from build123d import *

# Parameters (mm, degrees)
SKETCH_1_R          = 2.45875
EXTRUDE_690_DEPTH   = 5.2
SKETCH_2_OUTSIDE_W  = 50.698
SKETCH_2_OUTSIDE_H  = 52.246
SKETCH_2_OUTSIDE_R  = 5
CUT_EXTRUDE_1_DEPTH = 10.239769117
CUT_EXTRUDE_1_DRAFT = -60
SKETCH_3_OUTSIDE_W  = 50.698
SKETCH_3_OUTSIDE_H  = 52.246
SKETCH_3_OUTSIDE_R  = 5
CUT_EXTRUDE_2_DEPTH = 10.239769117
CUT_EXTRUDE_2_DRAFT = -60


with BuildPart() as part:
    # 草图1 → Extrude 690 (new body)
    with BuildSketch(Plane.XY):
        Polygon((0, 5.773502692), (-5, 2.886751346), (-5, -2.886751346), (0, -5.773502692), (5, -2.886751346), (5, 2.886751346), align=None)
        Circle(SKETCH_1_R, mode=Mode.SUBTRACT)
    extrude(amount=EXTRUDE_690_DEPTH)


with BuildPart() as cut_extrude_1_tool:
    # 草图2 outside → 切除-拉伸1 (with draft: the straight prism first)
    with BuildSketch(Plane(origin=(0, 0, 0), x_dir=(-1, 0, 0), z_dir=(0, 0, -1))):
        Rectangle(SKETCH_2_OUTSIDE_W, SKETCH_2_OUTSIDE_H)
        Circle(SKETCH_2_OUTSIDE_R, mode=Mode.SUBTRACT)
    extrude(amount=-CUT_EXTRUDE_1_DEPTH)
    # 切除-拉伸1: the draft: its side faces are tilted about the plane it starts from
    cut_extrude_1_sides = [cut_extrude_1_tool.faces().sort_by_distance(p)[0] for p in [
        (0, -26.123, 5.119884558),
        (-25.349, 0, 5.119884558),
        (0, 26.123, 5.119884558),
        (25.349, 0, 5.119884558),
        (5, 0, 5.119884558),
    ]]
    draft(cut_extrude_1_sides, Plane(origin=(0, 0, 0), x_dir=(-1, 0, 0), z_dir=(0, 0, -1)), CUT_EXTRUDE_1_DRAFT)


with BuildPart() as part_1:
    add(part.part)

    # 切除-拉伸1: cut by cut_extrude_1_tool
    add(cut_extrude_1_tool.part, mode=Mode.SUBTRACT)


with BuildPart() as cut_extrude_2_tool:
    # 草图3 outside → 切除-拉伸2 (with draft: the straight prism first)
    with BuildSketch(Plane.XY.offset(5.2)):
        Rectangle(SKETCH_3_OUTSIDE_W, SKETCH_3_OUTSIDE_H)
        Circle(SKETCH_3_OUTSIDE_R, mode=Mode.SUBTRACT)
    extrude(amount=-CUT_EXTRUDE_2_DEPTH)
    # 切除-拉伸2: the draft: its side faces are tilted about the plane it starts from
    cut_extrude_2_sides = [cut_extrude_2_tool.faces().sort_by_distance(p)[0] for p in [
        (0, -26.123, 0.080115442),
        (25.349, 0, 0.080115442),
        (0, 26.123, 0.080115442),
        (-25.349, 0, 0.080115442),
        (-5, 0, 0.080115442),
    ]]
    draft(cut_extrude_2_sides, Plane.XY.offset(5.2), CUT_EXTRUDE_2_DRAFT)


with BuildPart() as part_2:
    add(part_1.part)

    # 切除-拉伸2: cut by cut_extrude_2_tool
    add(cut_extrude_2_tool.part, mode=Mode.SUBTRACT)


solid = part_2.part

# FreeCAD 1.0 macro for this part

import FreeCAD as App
import Part
import Sketcher

V = App.Vector
Q = App.Units.Quantity


def faces_at(feature, points):
    """Names of the faces that lie closest to the given points."""
    faces = feature.Shape.Faces
    near = lambda p: min(range(len(faces)), key=lambda i: faces[i].distToShape(Part.Vertex(*p))[0])
    return sorted({f"Face{near(p) + 1}" for p in points})


def add_polygon(sketch, points):
    """Adds a closed chain of lines whose ends are joined by coincident constraints."""
    first, n = sketch.GeometryCount, len(points)
    for a, b in zip(points, points[1:] + points[:1]):
        sketch.addGeometry(Part.LineSegment(App.Vector(*a, 0), App.Vector(*b, 0)), False)
    for i in range(n):
        sketch.addConstraint(Sketcher.Constraint("Coincident", first + i, 2, first + (i + 1) % n, 1))

doc = App.newDocument("Part")
body = doc.addObject("PartDesign::Body", "Body")

# Sketch on XY plane
sketch1 = doc.addObject("Sketcher::SketchObject", "Sketch")
body.addObject(sketch1)
sketch1.AttachmentSupport = (doc.XY_Plane, [""])
sketch1.MapMode = "FlatFace"
add_polygon(sketch1, [(0, 5.773503), (-5, 2.886751), (-5, -2.886751), (0, -5.773503), (5, -2.886751), (5, 2.886751)])  # lines 0-5
sketch1.addGeometry(Part.Circle(V(0, 0, 0), V(0, 0, 1), 2.45875), False)  # 6
sketch1.addConstraint(Sketcher.Constraint("Vertical", 1))
sketch1.addConstraint(Sketcher.Constraint("Vertical", 4))
sketch1.addConstraint(Sketcher.Constraint("Coincident", 6, 3, -1, 1))
sketch1.addConstraint(Sketcher.Constraint("Symmetric", 0, 2, 3, 2, -1, 1))
sketch1.addConstraint(Sketcher.Constraint("Symmetric", 2, 2, 5, 2, -1, 1))
sketch1.addConstraint(Sketcher.Constraint("PointOnObject", 2, 2, -2))
sketch1.addConstraint(Sketcher.Constraint("Parallel", 2, 5))
sketch1.addConstraint(Sketcher.Constraint("Horizontal", 1, 2, 3, 2))
sketch1.addConstraint(Sketcher.Constraint("Angle", 0, Q("-150 deg")))
sketch1.addConstraint(Sketcher.Constraint("DistanceX", 0, 2, -1, 1, 5.0))
sketch1.addConstraint(Sketcher.Constraint("Diameter", 6, 4.9175))
sketch1.addConstraint(Sketcher.Constraint("DistanceY", 1, 2, 1, 1, 5.773503))
pad1 = doc.addObject("PartDesign::Pad", "Pad")
body.addObject(pad1)
pad1.Profile = sketch1
pad1.Length = 5.2
body2 = doc.addObject("PartDesign::Body", "Body001")

# Sketch on XY plane
sketch2 = doc.addObject("Sketcher::SketchObject", "Sketch001")
body2.addObject(sketch2)
sketch2.AttachmentSupport = (doc.getObject("XY_Plane001"), [""])
sketch2.MapMode = "FlatFace"
add_polygon(sketch2, [(25.349, 26.123), (25.349, -26.123), (-25.349, -26.123), (-25.349, 26.123)])  # lines 0-3
sketch2.addGeometry(Part.Circle(V(0, 0, 0), V(0, 0, 1), 5), False)  # 4
sketch2.addConstraint(Sketcher.Constraint("Vertical", 0))
sketch2.addConstraint(Sketcher.Constraint("Horizontal", 1))
sketch2.addConstraint(Sketcher.Constraint("Vertical", 2))
sketch2.addConstraint(Sketcher.Constraint("Horizontal", 3))
sketch2.addConstraint(Sketcher.Constraint("Coincident", 4, 3, -1, 1))
sketch2.addConstraint(Sketcher.Constraint("Symmetric", 0, 2, 2, 2, -1, 1))
sketch2.addConstraint(Sketcher.Constraint("Diameter", 4, 10.0))
sketch2.addConstraint(Sketcher.Constraint("DistanceX", 1, 2, 1, 1, 50.698))
sketch2.addConstraint(Sketcher.Constraint("DistanceY", 0, 2, 0, 1, 52.246))
pad2 = doc.addObject("PartDesign::Pad", "Pad001")
body2.addObject(pad2)
pad2.Profile = sketch2
pad2.Length = 10.239769
doc.recompute()

draft = doc.addObject("PartDesign::Draft", "Draft")
body2.addObject(draft)
draft.Base = (pad2, faces_at(pad2, [
    (0, -26.123, 5.12),
    (-25.349, 0, 5.12),
    (0, 26.123, 5.12),
    (25.349, 0, 5.12),
    (5, 0, 5.12),
]))
draft.NeutralPlane = (doc.getObject("XY_Plane001"), [""])
draft.Angle = 60
draft.Reversed = False
doc.recompute()

boolean = doc.addObject("PartDesign::Boolean", "Boolean")
body.addObject(boolean)
boolean.Type = "Cut"
boolean.addObjects([body2])
body3 = doc.addObject("PartDesign::Body", "Body002")

# Sketch on XY plane
sketch3 = doc.addObject("Sketcher::SketchObject", "Sketch002")
body3.addObject(sketch3)
sketch3.AttachmentSupport = (doc.getObject("XY_Plane002"), [""])
sketch3.MapMode = "FlatFace"
sketch3.AttachmentOffset = App.Placement(V(0, 0, 5.2), App.Rotation())
add_polygon(sketch3, [(-25.349, 26.123), (-25.349, -26.123), (25.349, -26.123), (25.349, 26.123)])  # lines 0-3
sketch3.addGeometry(Part.Circle(V(0, 0, 0), V(0, 0, 1), 5), False)  # 4
sketch3.addConstraint(Sketcher.Constraint("Vertical", 0))
sketch3.addConstraint(Sketcher.Constraint("Horizontal", 1))
sketch3.addConstraint(Sketcher.Constraint("Vertical", 2))
sketch3.addConstraint(Sketcher.Constraint("Horizontal", 3))
sketch3.addConstraint(Sketcher.Constraint("Coincident", 4, 3, -1, 1))
sketch3.addConstraint(Sketcher.Constraint("Symmetric", 0, 2, 2, 2, -1, 1))
sketch3.addConstraint(Sketcher.Constraint("Diameter", 4, 10.0))
sketch3.addConstraint(Sketcher.Constraint("DistanceX", 1, 1, 1, 2, 50.698))
sketch3.addConstraint(Sketcher.Constraint("DistanceY", 0, 2, 0, 1, 52.246))
pad3 = doc.addObject("PartDesign::Pad", "Pad002")
body3.addObject(pad3)
pad3.Profile = sketch3
pad3.Length = 10.239769
pad3.Reversed = True
doc.recompute()

datumplane = doc.addObject("PartDesign::Plane", "DatumPlane")
body3.addObject(datumplane)
datumplane.AttachmentSupport = (doc.getObject("XY_Plane002"), [""])
datumplane.MapMode = "FlatFace"
datumplane.AttachmentOffset = App.Placement(V(0, 0, 5.2), App.Rotation())
draft2 = doc.addObject("PartDesign::Draft", "Draft001")
body3.addObject(draft2)
draft2.Base = (pad3, faces_at(pad3, [
    (0, -26.123, 0.08),
    (25.349, 0, 0.08),
    (0, 26.123, 0.08),
    (-25.349, 0, 0.08),
    (-5, 0, 0.08),
]))
draft2.NeutralPlane = (datumplane, [""])
draft2.Angle = 60
draft2.Reversed = True
doc.recompute()

boolean2 = doc.addObject("PartDesign::Boolean", "Boolean001")
body.addObject(boolean2)
boolean2.Type = "Cut"
boolean2.addObjects([body3])

doc.recompute()
